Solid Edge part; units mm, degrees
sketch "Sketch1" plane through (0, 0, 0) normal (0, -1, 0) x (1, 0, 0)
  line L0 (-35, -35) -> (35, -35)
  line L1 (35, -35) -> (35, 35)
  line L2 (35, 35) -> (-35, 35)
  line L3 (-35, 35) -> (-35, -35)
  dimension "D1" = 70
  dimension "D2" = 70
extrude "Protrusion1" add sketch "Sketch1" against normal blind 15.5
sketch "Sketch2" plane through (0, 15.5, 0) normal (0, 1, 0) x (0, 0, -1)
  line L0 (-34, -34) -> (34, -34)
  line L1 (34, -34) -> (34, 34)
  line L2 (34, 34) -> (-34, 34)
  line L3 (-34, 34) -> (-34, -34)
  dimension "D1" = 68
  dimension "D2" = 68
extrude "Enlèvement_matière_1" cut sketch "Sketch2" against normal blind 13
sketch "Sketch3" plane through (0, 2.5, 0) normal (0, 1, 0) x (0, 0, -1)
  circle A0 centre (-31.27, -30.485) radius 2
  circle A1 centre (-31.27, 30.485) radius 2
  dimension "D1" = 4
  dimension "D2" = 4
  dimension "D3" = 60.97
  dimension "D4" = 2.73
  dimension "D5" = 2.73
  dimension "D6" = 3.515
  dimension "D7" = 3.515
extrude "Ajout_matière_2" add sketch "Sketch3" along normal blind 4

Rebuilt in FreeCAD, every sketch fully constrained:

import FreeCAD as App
import Part
import Sketcher

doc = App.newDocument("Part")
body = doc.addObject("PartDesign::Body", "Body")

sketch1 = body.newObject("Sketcher::SketchObject", "Sketch")
sketch1.AttachmentSupport = (doc.getObject("XZ_Plane"), [""])
sketch1.MapMode = "FlatFace"
sketch1.addGeometry([
    Part.LineSegment(App.Vector(-35, 35, 0), App.Vector(-35, -35, 0)),
    Part.LineSegment(App.Vector(-35, -35, 0), App.Vector(35, -35, 0)),
    Part.LineSegment(App.Vector(35, -35, 0), App.Vector(35, 35, 0)),
    Part.LineSegment(App.Vector(35, 35, 0), App.Vector(-35, 35, 0)),
], False)
sketch1.addConstraint([
    Sketcher.Constraint("Coincident", 0, 2, 1, 1),
    Sketcher.Constraint("Coincident", 1, 2, 2, 1),
    Sketcher.Constraint("Coincident", 2, 2, 3, 1),
    Sketcher.Constraint("Coincident", 3, 2, 0, 1),
    Sketcher.Constraint("Vertical", 0),
    Sketcher.Constraint("Horizontal", 1),
    Sketcher.Constraint("Vertical", 2),
    Sketcher.Constraint("Horizontal", 3),
    Sketcher.Constraint("Symmetric", 0, 2, 2, 2, -1, 1),
    Sketcher.Constraint("Equal", 3, 0),
    Sketcher.Constraint("DistanceX", 0, 2, -1, 1, 35.0),
])
pad1 = body.newObject("PartDesign::Pad", "Pad")
pad1.Profile = sketch1
pad1.Length = 15.5
pad1.Reversed = True

sketch2 = body.newObject("Sketcher::SketchObject", "Sketch001")
sketch2.AttachmentSupport = (doc.getObject("XZ_Plane"), [""])
sketch2.MapMode = "FlatFace"
sketch2.AttachmentOffset = App.Placement(App.Vector(0, 0, -15.5), App.Rotation())
sketch2.addGeometry([
    Part.LineSegment(App.Vector(-34, 34, 0), App.Vector(34, 34, 0)),
    Part.LineSegment(App.Vector(34, 34, 0), App.Vector(34, -34, 0)),
    Part.LineSegment(App.Vector(34, -34, 0), App.Vector(-34, -34, 0)),
    Part.LineSegment(App.Vector(-34, -34, 0), App.Vector(-34, 34, 0)),
], False)
sketch2.addConstraint([
    Sketcher.Constraint("Coincident", 0, 2, 1, 1),
    Sketcher.Constraint("Coincident", 1, 2, 2, 1),
    Sketcher.Constraint("Coincident", 2, 2, 3, 1),
    Sketcher.Constraint("Coincident", 3, 2, 0, 1),
    Sketcher.Constraint("Horizontal", 0),
    Sketcher.Constraint("Vertical", 1),
    Sketcher.Constraint("Horizontal", 2),
    Sketcher.Constraint("Vertical", 3),
    Sketcher.Constraint("Symmetric", 0, 2, 2, 2, -1, 1),
    Sketcher.Constraint("Equal", 2, 1),
    Sketcher.Constraint("DistanceX", -1, 1, 0, 2, 34.0),
])
pocket1 = body.newObject("PartDesign::Pocket", "Pocket")
pocket1.Profile = sketch2
pocket1.Length = 13
pocket1.Reversed = True

sketch3 = body.newObject("Sketcher::SketchObject", "Sketch002")
sketch3.AttachmentSupport = (doc.getObject("XZ_Plane"), [""])
sketch3.MapMode = "FlatFace"
sketch3.AttachmentOffset = App.Placement(App.Vector(0, 0, -2.5), App.Rotation())
sketch3.addGeometry([
    Part.Circle(App.Vector(30.485, 31.27, 0), App.Vector(0, 0, 1), 2),
    Part.Circle(App.Vector(-30.485, 31.27, 0), App.Vector(0, 0, 1), 2),
], False)
sketch3.addConstraint([
    Sketcher.Constraint("Equal", 0, 1),
    Sketcher.Constraint("Symmetric", 0, 3, 1, 3, -2),
    Sketcher.Constraint("Diameter", 0, 4.0),
    Sketcher.Constraint("DistanceY", -1, 1, 0, 3, 31.27),
    Sketcher.Constraint("DistanceX", 1, 3, 0, 3, 60.97),
])
pad2 = body.newObject("PartDesign::Pad", "Pad001")
pad2.Profile = sketch3
pad2.Length = 4
pad2.Reversed = True

doc.recompute()
